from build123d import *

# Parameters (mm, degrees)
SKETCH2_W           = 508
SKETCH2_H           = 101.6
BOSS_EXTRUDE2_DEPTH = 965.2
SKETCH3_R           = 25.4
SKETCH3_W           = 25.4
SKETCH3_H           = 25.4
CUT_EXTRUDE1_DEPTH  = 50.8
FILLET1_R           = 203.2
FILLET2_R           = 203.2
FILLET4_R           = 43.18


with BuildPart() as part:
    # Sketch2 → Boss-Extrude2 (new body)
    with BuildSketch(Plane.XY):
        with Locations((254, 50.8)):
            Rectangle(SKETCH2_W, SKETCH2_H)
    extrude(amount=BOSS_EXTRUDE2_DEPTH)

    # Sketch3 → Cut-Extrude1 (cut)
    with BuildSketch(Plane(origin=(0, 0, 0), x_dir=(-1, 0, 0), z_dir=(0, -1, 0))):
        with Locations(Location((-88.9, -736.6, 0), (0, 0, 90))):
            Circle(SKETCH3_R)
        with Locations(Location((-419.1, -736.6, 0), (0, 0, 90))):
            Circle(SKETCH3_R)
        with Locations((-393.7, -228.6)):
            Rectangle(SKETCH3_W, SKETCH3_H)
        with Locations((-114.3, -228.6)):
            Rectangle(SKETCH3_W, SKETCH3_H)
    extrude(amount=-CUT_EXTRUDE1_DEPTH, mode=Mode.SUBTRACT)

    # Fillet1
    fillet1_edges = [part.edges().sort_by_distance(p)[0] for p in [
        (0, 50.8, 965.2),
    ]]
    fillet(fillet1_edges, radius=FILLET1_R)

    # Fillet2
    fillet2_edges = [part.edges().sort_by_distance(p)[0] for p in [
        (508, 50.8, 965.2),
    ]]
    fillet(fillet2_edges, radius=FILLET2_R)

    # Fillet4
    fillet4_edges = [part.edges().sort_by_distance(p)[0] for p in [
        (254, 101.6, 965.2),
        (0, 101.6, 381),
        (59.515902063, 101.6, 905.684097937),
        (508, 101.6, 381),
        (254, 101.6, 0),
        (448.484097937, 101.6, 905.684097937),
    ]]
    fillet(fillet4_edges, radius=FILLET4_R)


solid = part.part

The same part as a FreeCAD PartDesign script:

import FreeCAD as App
import Part
import Sketcher
Q = App.Units.Quantity


def edges_at(feature, points):
    """Names of the edges that pass closest to the given points."""
    edges = feature.Shape.Edges
    near = lambda p: min(range(len(edges)), key=lambda i: edges[i].distToShape(Part.Vertex(*p))[0])
    return sorted({f"Edge{near(p) + 1}" for p in points})

doc = App.newDocument("Part")
params = doc.addObject("Spreadsheet::Sheet", "Params")
for row, (alias, value) in enumerate([
    ("sketch1_width", "20 in"),
    ("sketch1_height", "4 in"),
    ("pad1_length", "38 in"),
    ("sketch2_diameter", "2 in"),
    ("sketch2_width", "1 in"),
    ("pocket1_length", "2 in"),
    ("fillet_radius", "8 in"),
    ("fillet2_radius", "8 in"),
    ("fillet3_radius", "1.7 in"),
], start=1):
    params.set(f"A{row}", alias)
    params.set(f"B{row}", "=" + value)
    params.setAlias(f"B{row}", alias)

body = doc.addObject("PartDesign::Body", "Body")

sketch1 = body.newObject("Sketcher::SketchObject", "Sketch")
sketch1.AttachmentSupport = (doc.getObject("XY_Plane"), [""])
sketch1.MapMode = "FlatFace"
sketch1.addGeometry(Part.LineSegment(App.Vector(0, 102, 0), App.Vector(0, 0, 0)), False)
sketch1.addGeometry(Part.LineSegment(App.Vector(0, 0, 0), App.Vector(508, 0, 0)), False)
sketch1.addGeometry(Part.LineSegment(App.Vector(508, 0, 0), App.Vector(508, 102, 0)), False)
sketch1.addGeometry(Part.LineSegment(App.Vector(508, 102, 0), App.Vector(0, 102, 0)), False)
sketch1.addConstraint(Sketcher.Constraint("Coincident", 0, 2, 1, 1))
sketch1.addConstraint(Sketcher.Constraint("Coincident", 1, 2, 2, 1))
sketch1.addConstraint(Sketcher.Constraint("Coincident", 2, 2, 3, 1))
sketch1.addConstraint(Sketcher.Constraint("Coincident", 3, 2, 0, 1))
sketch1.addConstraint(Sketcher.Constraint("Vertical", 0))
sketch1.addConstraint(Sketcher.Constraint("Horizontal", 1))
sketch1.addConstraint(Sketcher.Constraint("Vertical", 2))
sketch1.addConstraint(Sketcher.Constraint("Horizontal", 3))
sketch1.addConstraint(Sketcher.Constraint("Coincident", 0, 2, -1, 1))
sketch1.addConstraint(Sketcher.Constraint("DistanceX", 1, 1, 1, 2, Q("20 in")))
sketch1.addConstraint(Sketcher.Constraint("DistanceY", 0, 2, 0, 1, Q("4 in")))
sketch1.setExpression("Constraints[9]", "Params.sketch1_width")
sketch1.setExpression("Constraints[10]", "Params.sketch1_height")
pad1 = body.newObject("PartDesign::Pad", "Pad")
pad1.Profile = sketch1
pad1.setExpression("Length", "Params.pad1_length")

sketch2 = body.newObject("Sketcher::SketchObject", "Sketch001")
sketch2.AttachmentSupport = (doc.getObject("XZ_Plane"), [""])
sketch2.MapMode = "FlatFace"
sketch2.addGeometry(Part.Circle(App.Vector(89, 737, 0), App.Vector(0, 0, 1), 25), False)
sketch2.addGeometry(Part.Circle(App.Vector(419, 737, 0), App.Vector(0, 0, 1), 25), False)
sketch2.addGeometry(Part.LineSegment(App.Vector(406, 216, 0), App.Vector(406, 241, 0)), False)
sketch2.addGeometry(Part.LineSegment(App.Vector(406, 241, 0), App.Vector(381, 241, 0)), False)
sketch2.addGeometry(Part.LineSegment(App.Vector(381, 241, 0), App.Vector(381, 216, 0)), False)
sketch2.addGeometry(Part.LineSegment(App.Vector(381, 216, 0), App.Vector(406, 216, 0)), False)
sketch2.addGeometry(Part.LineSegment(App.Vector(127, 216, 0), App.Vector(127, 241, 0)), False)
sketch2.addGeometry(Part.LineSegment(App.Vector(127, 241, 0), App.Vector(102, 241, 0)), False)
sketch2.addGeometry(Part.LineSegment(App.Vector(102, 241, 0), App.Vector(102, 216, 0)), False)
sketch2.addGeometry(Part.LineSegment(App.Vector(102, 216, 0), App.Vector(127, 216, 0)), False)
sketch2.addConstraint(Sketcher.Constraint("Coincident", 2, 2, 3, 1))
sketch2.addConstraint(Sketcher.Constraint("Coincident", 3, 2, 4, 1))
sketch2.addConstraint(Sketcher.Constraint("Coincident", 4, 2, 5, 1))
sketch2.addConstraint(Sketcher.Constraint("Coincident", 5, 2, 2, 1))
sketch2.addConstraint(Sketcher.Constraint("Coincident", 6, 2, 7, 1))
sketch2.addConstraint(Sketcher.Constraint("Coincident", 7, 2, 8, 1))
sketch2.addConstraint(Sketcher.Constraint("Coincident", 8, 2, 9, 1))
sketch2.addConstraint(Sketcher.Constraint("Coincident", 9, 2, 6, 1))
sketch2.addConstraint(Sketcher.Constraint("Vertical", 2))
sketch2.addConstraint(Sketcher.Constraint("Horizontal", 3))
sketch2.addConstraint(Sketcher.Constraint("Vertical", 4))
sketch2.addConstraint(Sketcher.Constraint("Horizontal", 5))
sketch2.addConstraint(Sketcher.Constraint("Vertical", 6))
sketch2.addConstraint(Sketcher.Constraint("Horizontal", 7))
sketch2.addConstraint(Sketcher.Constraint("Vertical", 8))
sketch2.addConstraint(Sketcher.Constraint("Horizontal", 9))
sketch2.addConstraint(Sketcher.Constraint("Equal", 0, 1))
sketch2.addConstraint(Sketcher.Constraint("Horizontal", 0, 3, 1, 3))
sketch2.addConstraint(Sketcher.Constraint("Horizontal", 3, 2, 6, 2))
sketch2.addConstraint(Sketcher.Constraint("Horizontal", 5, 2, 8, 2))
sketch2.addConstraint(Sketcher.Constraint("Equal", 5, 7))
sketch2.addConstraint(Sketcher.Constraint("Equal", 9, 2))
sketch2.addConstraint(Sketcher.Constraint("Diameter", 0, Q("2 in")))
sketch2.addConstraint(Sketcher.Constraint("DistanceX", 3, 2, 3, 1, Q("1 in")))
sketch2.addConstraint(Sketcher.Constraint("DistanceY", -1, 1, 0, 3, Q("29 in")))
sketch2.addConstraint(Sketcher.Constraint("DistanceX", -1, 1, 2, 2, Q("16 in")))
sketch2.addConstraint(Sketcher.Constraint("DistanceX", -1, 1, 6, 2, Q("5 in")))
sketch2.addConstraint(Sketcher.Constraint("DistanceX", 0, 3, 1, 3, Q("13 in")))
sketch2.addConstraint(Sketcher.Constraint("DistanceX", -1, 1, 0, 3, Q("3.5 in")))
sketch2.addConstraint(Sketcher.Constraint("DistanceY", -1, 1, 2, 2, Q("9.5 in")))
sketch2.setExpression("Constraints[22]", "Params.sketch2_diameter")
sketch2.setExpression("Constraints[23]", "Params.sketch2_width")
pocket1 = body.newObject("PartDesign::Pocket", "Pocket")
pocket1.Profile = sketch2
pocket1.setExpression("Length", "Params.pocket1_length")
doc.recompute()

fillet = body.newObject("PartDesign::Fillet", "Fillet")
fillet.Base = (pocket1, edges_at(pocket1, [(0, 50.8, 965.2)]))
fillet.setExpression("Radius", "Params.fillet_radius")
doc.recompute()

fillet2 = body.newObject("PartDesign::Fillet", "Fillet001")
fillet2.Base = (fillet, edges_at(fillet, [(508, 50.8, 965.2)]))
fillet2.setExpression("Radius", "Params.fillet2_radius")
doc.recompute()

fillet3 = body.newObject("PartDesign::Fillet", "Fillet002")
fillet3.Base = (fillet2, edges_at(fillet2, [
    (254, 101.6, 965.2),
    (0, 101.6, 381),
    (59.516, 101.6, 905.684),
    (508, 101.6, 381),
    (254, 101.6, 0),
    (448.484, 101.6, 905.684),
]))
fillet3.setExpression("Radius", "Params.fillet3_radius")

doc.recompute()
